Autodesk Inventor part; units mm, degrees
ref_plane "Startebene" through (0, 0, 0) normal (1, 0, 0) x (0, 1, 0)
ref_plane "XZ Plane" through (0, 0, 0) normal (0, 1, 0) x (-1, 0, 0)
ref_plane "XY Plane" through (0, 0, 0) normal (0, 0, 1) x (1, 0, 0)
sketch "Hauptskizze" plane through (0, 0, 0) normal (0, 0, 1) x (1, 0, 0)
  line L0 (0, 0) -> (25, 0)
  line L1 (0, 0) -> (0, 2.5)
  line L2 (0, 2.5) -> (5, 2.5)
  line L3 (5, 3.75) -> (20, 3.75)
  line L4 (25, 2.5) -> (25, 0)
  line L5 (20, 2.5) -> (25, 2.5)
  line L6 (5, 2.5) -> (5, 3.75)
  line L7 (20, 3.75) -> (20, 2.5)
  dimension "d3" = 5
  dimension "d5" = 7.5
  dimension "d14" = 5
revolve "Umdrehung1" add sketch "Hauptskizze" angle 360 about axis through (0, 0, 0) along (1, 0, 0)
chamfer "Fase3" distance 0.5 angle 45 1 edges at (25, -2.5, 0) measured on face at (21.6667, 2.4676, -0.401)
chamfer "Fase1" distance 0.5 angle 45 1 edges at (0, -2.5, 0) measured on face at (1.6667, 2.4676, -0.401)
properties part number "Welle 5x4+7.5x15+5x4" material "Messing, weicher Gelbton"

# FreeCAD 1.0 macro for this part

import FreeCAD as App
import Part
import Sketcher
from FreeCAD import Vector
Q = App.Units.Quantity


def edges_at(feature, points):
    """Names of the edges that pass closest to the given points."""
    edges = feature.Shape.Edges
    near = lambda p: min(range(len(edges)), key=lambda i: edges[i].distToShape(Part.Vertex(*p))[0])
    return sorted({f"Edge{near(p) + 1}" for p in points})


def add_polygon(sketch, points):
    """Adds a closed chain of lines whose ends are joined by coincident constraints."""
    first, n = sketch.GeometryCount, len(points)
    for a, b in zip(points, points[1:] + points[:1]):
        sketch.addGeometry(Part.LineSegment(App.Vector(*a, 0), App.Vector(*b, 0)), False)
    for i in range(n):
        sketch.addConstraint(Sketcher.Constraint("Coincident", first + i, 2, first + (i + 1) % n, 1))

doc = App.newDocument("Part")
params = doc.addObject("Spreadsheet::Sheet", "Params")
for row, (alias, value) in enumerate([
    ("sketch1_width", "5 mm"),
    ("sketch1_width2", "25 mm"),
    ("sketch1_height", "2.5 mm"),
    ("sketch1_height2", "1.25 mm"),
    ("revolution_angle", "360 deg"),
    ("chamfer_size", "0.5 mm"),
    ("chamfer2_size", "0.5 mm"),
], start=1):
    params.set(f"A{row}", alias)
    params.set(f"B{row}", "=" + value)
    params.setAlias(f"B{row}", alias)

body = doc.addObject("PartDesign::Body", "Body")

sketch1 = doc.addObject("Sketcher::SketchObject", "Sketch")
body.addObject(sketch1)
sketch1.AttachmentSupport = (doc.XY_Plane, [""])
sketch1.MapMode = "FlatFace"
add_polygon(sketch1, [(0, 2.5), (0, 0), (25, 0), (25, 2.5), (20, 2.5), (20, 3.75), (5, 3.75), (5, 2.5)])
sketch1.addConstraint(Sketcher.Constraint("Vertical", 0))
sketch1.addConstraint(Sketcher.Constraint("Horizontal", 1))
sketch1.addConstraint(Sketcher.Constraint("Vertical", 2))
sketch1.addConstraint(Sketcher.Constraint("Horizontal", 3))
sketch1.addConstraint(Sketcher.Constraint("Vertical", 4))
sketch1.addConstraint(Sketcher.Constraint("Horizontal", 5))
sketch1.addConstraint(Sketcher.Constraint("Vertical", 6))
sketch1.addConstraint(Sketcher.Constraint("Horizontal", 7))
sketch1.addConstraint(Sketcher.Constraint("Coincident", 0, 2, -1, 1))
sketch1.addConstraint(Sketcher.Constraint("Horizontal", 3, 2, 6, 2))
sketch1.addConstraint(Sketcher.Constraint("Equal", 3, 7))
sketch1.addConstraint(Sketcher.Constraint("DistanceX", 3, 2, 3, 1, Q("5 mm")))
sketch1.addConstraint(Sketcher.Constraint("DistanceX", 1, 1, 1, 2, Q("25 mm")))
sketch1.addConstraint(Sketcher.Constraint("DistanceY", 0, 2, 0, 1, Q("2.5 mm")))
sketch1.addConstraint(Sketcher.Constraint("DistanceY", 4, 1, 4, 2, Q("1.25 mm")))
sketch1.setExpression("Constraints[19]", "Params.sketch1_width")
sketch1.setExpression("Constraints[20]", "Params.sketch1_width2")
sketch1.setExpression("Constraints[21]", "Params.sketch1_height")
sketch1.setExpression("Constraints[22]", "Params.sketch1_height2")
revolution = doc.addObject("PartDesign::Revolution", "Revolution")
body.addObject(revolution)
revolution.Profile = sketch1
revolution.ReferenceAxis = (sketch1, ["H_Axis"])
revolution.setExpression("Angle", "Params.revolution_angle")
doc.recompute()

chamfer = doc.addObject("PartDesign::Chamfer", "Chamfer")
body.addObject(chamfer)
chamfer.Base = (revolution, edges_at(revolution, [(25, -2.5, 0)]))
chamfer.setExpression("Size", "Params.chamfer_size")
doc.recompute()

chamfer2 = doc.addObject("PartDesign::Chamfer", "Chamfer001")
body.addObject(chamfer2)
chamfer2.Base = (chamfer, edges_at(chamfer, [(0, -2.5, 0)]))
chamfer2.setExpression("Size", "Params.chamfer2_size")

doc.recompute()
